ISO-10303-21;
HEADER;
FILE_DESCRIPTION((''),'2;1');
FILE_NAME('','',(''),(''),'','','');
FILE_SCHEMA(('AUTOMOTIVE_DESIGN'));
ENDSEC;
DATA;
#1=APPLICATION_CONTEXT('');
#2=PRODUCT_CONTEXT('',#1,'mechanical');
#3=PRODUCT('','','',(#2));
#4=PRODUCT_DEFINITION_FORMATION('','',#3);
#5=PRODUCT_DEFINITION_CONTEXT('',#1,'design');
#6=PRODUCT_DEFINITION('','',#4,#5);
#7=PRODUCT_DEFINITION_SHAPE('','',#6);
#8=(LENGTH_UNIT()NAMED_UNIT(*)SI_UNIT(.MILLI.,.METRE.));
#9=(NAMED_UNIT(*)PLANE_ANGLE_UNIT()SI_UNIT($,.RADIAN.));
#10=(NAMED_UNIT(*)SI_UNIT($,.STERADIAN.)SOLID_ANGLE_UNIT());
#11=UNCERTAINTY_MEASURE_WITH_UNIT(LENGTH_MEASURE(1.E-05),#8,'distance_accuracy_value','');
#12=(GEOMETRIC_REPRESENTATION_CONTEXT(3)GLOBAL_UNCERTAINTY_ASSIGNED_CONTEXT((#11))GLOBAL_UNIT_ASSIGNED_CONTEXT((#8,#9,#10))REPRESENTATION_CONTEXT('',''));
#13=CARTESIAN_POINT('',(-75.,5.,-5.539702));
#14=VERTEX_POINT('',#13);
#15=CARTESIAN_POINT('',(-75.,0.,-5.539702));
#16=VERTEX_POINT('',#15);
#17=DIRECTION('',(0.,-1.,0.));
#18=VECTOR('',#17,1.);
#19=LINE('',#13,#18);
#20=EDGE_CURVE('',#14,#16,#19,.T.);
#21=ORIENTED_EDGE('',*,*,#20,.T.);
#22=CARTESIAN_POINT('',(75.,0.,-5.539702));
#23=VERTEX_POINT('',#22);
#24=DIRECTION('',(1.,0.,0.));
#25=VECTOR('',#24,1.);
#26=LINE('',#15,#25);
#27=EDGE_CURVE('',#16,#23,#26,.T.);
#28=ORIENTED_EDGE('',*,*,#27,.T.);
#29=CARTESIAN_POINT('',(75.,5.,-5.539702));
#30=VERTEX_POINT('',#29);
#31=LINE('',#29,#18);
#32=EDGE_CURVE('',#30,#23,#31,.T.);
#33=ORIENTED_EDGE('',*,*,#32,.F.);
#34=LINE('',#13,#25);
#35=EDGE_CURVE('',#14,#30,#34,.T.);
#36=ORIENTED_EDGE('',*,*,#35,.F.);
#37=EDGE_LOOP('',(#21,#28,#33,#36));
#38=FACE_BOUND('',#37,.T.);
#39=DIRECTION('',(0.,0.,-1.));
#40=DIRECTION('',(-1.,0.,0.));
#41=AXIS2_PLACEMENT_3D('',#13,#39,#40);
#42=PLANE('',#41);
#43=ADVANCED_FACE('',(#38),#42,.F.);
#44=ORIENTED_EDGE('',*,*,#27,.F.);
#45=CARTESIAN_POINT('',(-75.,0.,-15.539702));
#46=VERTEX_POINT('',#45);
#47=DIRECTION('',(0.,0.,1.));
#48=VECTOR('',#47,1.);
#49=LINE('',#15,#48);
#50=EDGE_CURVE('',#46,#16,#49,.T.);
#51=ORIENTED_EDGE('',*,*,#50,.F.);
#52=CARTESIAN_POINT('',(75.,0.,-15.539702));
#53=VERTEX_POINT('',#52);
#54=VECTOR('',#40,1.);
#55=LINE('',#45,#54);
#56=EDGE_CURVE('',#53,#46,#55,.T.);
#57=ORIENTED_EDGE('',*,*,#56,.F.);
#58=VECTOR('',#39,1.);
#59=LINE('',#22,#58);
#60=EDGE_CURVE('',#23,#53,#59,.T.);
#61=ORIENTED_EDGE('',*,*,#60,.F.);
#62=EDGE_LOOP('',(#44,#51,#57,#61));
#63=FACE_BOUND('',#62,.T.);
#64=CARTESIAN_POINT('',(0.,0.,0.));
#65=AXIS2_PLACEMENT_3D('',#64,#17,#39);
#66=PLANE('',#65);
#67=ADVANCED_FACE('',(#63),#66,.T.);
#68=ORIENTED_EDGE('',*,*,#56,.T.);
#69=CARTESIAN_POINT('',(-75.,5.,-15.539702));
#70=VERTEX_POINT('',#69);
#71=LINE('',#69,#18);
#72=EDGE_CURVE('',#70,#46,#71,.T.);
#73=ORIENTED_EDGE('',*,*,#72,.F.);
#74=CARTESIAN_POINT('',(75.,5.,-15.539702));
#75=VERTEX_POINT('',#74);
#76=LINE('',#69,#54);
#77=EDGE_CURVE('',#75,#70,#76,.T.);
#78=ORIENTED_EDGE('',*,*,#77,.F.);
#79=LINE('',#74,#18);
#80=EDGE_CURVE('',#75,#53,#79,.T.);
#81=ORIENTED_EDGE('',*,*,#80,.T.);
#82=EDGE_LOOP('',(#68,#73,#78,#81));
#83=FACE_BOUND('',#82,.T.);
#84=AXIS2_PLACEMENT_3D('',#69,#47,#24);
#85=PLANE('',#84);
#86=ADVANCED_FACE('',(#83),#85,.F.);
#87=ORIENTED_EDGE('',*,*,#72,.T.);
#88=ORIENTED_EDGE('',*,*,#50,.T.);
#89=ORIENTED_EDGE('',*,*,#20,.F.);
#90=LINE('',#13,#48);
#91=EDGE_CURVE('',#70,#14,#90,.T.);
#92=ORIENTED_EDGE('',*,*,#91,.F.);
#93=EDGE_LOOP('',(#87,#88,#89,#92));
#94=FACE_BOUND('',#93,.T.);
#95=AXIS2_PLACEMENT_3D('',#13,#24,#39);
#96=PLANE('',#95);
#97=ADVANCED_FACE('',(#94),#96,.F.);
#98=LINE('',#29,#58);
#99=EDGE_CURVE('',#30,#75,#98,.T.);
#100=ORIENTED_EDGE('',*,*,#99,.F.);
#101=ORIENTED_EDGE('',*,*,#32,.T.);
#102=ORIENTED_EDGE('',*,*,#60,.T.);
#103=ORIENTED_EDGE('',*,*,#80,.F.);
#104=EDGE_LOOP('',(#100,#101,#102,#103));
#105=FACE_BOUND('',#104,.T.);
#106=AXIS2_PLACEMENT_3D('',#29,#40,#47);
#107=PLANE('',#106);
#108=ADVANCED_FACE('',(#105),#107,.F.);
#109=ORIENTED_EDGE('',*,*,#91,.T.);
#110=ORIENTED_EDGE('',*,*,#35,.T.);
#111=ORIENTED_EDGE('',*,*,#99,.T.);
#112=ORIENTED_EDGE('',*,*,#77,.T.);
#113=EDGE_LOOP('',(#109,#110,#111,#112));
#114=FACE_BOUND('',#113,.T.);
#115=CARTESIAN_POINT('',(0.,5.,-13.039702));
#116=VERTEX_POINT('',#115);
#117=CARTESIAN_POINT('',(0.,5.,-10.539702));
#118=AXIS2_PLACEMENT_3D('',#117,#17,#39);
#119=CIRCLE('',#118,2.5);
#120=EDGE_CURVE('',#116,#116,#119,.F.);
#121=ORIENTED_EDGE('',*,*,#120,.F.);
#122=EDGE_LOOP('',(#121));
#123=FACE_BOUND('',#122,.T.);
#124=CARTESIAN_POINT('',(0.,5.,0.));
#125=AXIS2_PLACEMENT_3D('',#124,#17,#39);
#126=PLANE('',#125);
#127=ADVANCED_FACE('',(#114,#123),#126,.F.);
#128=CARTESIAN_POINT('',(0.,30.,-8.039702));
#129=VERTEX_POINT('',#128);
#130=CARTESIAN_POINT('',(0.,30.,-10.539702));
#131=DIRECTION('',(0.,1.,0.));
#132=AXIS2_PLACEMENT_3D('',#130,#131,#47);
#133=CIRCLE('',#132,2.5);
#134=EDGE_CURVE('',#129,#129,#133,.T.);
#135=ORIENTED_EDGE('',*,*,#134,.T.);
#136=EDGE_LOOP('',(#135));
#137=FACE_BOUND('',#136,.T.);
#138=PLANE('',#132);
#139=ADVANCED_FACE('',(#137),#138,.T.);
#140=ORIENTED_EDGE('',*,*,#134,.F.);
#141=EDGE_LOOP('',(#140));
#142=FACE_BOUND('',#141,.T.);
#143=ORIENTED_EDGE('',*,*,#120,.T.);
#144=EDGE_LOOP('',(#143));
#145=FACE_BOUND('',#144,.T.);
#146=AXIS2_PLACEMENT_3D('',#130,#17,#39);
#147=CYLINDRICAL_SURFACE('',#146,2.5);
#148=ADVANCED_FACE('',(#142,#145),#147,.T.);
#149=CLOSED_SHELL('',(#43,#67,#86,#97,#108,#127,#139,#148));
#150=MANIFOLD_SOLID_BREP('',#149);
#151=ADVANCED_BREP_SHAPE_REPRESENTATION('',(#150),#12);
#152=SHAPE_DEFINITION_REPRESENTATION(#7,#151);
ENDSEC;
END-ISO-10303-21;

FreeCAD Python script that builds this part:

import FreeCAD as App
import Part
import Sketcher
from FreeCAD import Vector
Q = App.Units.Quantity


def add_polygon(sketch, points):
    """Adds a closed chain of lines whose ends are joined by coincident constraints."""
    first, n = sketch.GeometryCount, len(points)
    for a, b in zip(points, points[1:] + points[:1]):
        sketch.addGeometry(Part.LineSegment(App.Vector(*a, 0), App.Vector(*b, 0)), False)
    for i in range(n):
        sketch.addConstraint(Sketcher.Constraint("Coincident", first + i, 2, first + (i + 1) % n, 1))

doc = App.newDocument("Part")
params = doc.addObject("Spreadsheet::Sheet", "Params")
for row, (alias, value) in enumerate([
    ("sketch1_width", "150 mm"),
    ("sketch1_height", "10 mm"),
    ("pad1_length", "5 mm"),
    ("sketch2_diameter", "5 mm"),
    ("pad2_length", "25 mm"),
], start=1):
    params.set(f"A{row}", alias)
    params.set(f"B{row}", "=" + value)
    params.setAlias(f"B{row}", alias)

body = doc.addObject("PartDesign::Body", "Body")

sketch1 = doc.addObject("Sketcher::SketchObject", "Sketch")
body.addObject(sketch1)
sketch1.AttachmentSupport = (doc.XZ_Plane, [""])
sketch1.MapMode = "FlatFace"
add_polygon(sketch1, [(-75, -15.539702), (-75, -5.539702), (75, -5.539702), (75, -15.539702)])
sketch1.addConstraint(Sketcher.Constraint("Vertical", 0))
sketch1.addConstraint(Sketcher.Constraint("Horizontal", 1))
sketch1.addConstraint(Sketcher.Constraint("Vertical", 2))
sketch1.addConstraint(Sketcher.Constraint("Horizontal", 3))
sketch1.addConstraint(Sketcher.Constraint("DistanceX", 1, 1, 1, 2, Q("150 mm")))
sketch1.addConstraint(Sketcher.Constraint("DistanceY", 0, 1, 0, 2, Q("10 mm")))
sketch1.addConstraint(Sketcher.Constraint("DistanceX", 0, 2, -1, 1, Q("75 mm")))
sketch1.addConstraint(Sketcher.Constraint("DistanceY", 0, 2, -1, 1, Q("5.539702 mm")))
sketch1.setExpression("Constraints[8]", "Params.sketch1_width")
sketch1.setExpression("Constraints[9]", "Params.sketch1_height")
pad1 = doc.addObject("PartDesign::Pad", "Pad")
body.addObject(pad1)
pad1.Profile = sketch1
pad1.setExpression("Length", "Params.pad1_length")
pad1.Reversed = True

sketch2 = doc.addObject("Sketcher::SketchObject", "Sketch001")
body.addObject(sketch2)
sketch2.AttachmentSupport = (doc.XZ_Plane, [""])
sketch2.MapMode = "FlatFace"
sketch2.AttachmentOffset = App.Placement(Vector(0, 0, -5), App.Rotation())
sketch2.addGeometry(Part.Circle(Vector(0, -10.539702, 0), Vector(0, 0, 1), 2.5), False)
sketch2.addConstraint(Sketcher.Constraint("PointOnObject", 0, 3, -2))
sketch2.addConstraint(Sketcher.Constraint("Diameter", 0, Q("5 mm")))
sketch2.addConstraint(Sketcher.Constraint("DistanceY", 0, 3, -1, 1, Q("10.539702 mm")))
sketch2.setExpression("Constraints[1]", "Params.sketch2_diameter")
pad2 = doc.addObject("PartDesign::Pad", "Pad001")
body.addObject(pad2)
pad2.Profile = sketch2
pad2.setExpression("Length", "Params.pad2_length")
pad2.Reversed = True

doc.recompute()
